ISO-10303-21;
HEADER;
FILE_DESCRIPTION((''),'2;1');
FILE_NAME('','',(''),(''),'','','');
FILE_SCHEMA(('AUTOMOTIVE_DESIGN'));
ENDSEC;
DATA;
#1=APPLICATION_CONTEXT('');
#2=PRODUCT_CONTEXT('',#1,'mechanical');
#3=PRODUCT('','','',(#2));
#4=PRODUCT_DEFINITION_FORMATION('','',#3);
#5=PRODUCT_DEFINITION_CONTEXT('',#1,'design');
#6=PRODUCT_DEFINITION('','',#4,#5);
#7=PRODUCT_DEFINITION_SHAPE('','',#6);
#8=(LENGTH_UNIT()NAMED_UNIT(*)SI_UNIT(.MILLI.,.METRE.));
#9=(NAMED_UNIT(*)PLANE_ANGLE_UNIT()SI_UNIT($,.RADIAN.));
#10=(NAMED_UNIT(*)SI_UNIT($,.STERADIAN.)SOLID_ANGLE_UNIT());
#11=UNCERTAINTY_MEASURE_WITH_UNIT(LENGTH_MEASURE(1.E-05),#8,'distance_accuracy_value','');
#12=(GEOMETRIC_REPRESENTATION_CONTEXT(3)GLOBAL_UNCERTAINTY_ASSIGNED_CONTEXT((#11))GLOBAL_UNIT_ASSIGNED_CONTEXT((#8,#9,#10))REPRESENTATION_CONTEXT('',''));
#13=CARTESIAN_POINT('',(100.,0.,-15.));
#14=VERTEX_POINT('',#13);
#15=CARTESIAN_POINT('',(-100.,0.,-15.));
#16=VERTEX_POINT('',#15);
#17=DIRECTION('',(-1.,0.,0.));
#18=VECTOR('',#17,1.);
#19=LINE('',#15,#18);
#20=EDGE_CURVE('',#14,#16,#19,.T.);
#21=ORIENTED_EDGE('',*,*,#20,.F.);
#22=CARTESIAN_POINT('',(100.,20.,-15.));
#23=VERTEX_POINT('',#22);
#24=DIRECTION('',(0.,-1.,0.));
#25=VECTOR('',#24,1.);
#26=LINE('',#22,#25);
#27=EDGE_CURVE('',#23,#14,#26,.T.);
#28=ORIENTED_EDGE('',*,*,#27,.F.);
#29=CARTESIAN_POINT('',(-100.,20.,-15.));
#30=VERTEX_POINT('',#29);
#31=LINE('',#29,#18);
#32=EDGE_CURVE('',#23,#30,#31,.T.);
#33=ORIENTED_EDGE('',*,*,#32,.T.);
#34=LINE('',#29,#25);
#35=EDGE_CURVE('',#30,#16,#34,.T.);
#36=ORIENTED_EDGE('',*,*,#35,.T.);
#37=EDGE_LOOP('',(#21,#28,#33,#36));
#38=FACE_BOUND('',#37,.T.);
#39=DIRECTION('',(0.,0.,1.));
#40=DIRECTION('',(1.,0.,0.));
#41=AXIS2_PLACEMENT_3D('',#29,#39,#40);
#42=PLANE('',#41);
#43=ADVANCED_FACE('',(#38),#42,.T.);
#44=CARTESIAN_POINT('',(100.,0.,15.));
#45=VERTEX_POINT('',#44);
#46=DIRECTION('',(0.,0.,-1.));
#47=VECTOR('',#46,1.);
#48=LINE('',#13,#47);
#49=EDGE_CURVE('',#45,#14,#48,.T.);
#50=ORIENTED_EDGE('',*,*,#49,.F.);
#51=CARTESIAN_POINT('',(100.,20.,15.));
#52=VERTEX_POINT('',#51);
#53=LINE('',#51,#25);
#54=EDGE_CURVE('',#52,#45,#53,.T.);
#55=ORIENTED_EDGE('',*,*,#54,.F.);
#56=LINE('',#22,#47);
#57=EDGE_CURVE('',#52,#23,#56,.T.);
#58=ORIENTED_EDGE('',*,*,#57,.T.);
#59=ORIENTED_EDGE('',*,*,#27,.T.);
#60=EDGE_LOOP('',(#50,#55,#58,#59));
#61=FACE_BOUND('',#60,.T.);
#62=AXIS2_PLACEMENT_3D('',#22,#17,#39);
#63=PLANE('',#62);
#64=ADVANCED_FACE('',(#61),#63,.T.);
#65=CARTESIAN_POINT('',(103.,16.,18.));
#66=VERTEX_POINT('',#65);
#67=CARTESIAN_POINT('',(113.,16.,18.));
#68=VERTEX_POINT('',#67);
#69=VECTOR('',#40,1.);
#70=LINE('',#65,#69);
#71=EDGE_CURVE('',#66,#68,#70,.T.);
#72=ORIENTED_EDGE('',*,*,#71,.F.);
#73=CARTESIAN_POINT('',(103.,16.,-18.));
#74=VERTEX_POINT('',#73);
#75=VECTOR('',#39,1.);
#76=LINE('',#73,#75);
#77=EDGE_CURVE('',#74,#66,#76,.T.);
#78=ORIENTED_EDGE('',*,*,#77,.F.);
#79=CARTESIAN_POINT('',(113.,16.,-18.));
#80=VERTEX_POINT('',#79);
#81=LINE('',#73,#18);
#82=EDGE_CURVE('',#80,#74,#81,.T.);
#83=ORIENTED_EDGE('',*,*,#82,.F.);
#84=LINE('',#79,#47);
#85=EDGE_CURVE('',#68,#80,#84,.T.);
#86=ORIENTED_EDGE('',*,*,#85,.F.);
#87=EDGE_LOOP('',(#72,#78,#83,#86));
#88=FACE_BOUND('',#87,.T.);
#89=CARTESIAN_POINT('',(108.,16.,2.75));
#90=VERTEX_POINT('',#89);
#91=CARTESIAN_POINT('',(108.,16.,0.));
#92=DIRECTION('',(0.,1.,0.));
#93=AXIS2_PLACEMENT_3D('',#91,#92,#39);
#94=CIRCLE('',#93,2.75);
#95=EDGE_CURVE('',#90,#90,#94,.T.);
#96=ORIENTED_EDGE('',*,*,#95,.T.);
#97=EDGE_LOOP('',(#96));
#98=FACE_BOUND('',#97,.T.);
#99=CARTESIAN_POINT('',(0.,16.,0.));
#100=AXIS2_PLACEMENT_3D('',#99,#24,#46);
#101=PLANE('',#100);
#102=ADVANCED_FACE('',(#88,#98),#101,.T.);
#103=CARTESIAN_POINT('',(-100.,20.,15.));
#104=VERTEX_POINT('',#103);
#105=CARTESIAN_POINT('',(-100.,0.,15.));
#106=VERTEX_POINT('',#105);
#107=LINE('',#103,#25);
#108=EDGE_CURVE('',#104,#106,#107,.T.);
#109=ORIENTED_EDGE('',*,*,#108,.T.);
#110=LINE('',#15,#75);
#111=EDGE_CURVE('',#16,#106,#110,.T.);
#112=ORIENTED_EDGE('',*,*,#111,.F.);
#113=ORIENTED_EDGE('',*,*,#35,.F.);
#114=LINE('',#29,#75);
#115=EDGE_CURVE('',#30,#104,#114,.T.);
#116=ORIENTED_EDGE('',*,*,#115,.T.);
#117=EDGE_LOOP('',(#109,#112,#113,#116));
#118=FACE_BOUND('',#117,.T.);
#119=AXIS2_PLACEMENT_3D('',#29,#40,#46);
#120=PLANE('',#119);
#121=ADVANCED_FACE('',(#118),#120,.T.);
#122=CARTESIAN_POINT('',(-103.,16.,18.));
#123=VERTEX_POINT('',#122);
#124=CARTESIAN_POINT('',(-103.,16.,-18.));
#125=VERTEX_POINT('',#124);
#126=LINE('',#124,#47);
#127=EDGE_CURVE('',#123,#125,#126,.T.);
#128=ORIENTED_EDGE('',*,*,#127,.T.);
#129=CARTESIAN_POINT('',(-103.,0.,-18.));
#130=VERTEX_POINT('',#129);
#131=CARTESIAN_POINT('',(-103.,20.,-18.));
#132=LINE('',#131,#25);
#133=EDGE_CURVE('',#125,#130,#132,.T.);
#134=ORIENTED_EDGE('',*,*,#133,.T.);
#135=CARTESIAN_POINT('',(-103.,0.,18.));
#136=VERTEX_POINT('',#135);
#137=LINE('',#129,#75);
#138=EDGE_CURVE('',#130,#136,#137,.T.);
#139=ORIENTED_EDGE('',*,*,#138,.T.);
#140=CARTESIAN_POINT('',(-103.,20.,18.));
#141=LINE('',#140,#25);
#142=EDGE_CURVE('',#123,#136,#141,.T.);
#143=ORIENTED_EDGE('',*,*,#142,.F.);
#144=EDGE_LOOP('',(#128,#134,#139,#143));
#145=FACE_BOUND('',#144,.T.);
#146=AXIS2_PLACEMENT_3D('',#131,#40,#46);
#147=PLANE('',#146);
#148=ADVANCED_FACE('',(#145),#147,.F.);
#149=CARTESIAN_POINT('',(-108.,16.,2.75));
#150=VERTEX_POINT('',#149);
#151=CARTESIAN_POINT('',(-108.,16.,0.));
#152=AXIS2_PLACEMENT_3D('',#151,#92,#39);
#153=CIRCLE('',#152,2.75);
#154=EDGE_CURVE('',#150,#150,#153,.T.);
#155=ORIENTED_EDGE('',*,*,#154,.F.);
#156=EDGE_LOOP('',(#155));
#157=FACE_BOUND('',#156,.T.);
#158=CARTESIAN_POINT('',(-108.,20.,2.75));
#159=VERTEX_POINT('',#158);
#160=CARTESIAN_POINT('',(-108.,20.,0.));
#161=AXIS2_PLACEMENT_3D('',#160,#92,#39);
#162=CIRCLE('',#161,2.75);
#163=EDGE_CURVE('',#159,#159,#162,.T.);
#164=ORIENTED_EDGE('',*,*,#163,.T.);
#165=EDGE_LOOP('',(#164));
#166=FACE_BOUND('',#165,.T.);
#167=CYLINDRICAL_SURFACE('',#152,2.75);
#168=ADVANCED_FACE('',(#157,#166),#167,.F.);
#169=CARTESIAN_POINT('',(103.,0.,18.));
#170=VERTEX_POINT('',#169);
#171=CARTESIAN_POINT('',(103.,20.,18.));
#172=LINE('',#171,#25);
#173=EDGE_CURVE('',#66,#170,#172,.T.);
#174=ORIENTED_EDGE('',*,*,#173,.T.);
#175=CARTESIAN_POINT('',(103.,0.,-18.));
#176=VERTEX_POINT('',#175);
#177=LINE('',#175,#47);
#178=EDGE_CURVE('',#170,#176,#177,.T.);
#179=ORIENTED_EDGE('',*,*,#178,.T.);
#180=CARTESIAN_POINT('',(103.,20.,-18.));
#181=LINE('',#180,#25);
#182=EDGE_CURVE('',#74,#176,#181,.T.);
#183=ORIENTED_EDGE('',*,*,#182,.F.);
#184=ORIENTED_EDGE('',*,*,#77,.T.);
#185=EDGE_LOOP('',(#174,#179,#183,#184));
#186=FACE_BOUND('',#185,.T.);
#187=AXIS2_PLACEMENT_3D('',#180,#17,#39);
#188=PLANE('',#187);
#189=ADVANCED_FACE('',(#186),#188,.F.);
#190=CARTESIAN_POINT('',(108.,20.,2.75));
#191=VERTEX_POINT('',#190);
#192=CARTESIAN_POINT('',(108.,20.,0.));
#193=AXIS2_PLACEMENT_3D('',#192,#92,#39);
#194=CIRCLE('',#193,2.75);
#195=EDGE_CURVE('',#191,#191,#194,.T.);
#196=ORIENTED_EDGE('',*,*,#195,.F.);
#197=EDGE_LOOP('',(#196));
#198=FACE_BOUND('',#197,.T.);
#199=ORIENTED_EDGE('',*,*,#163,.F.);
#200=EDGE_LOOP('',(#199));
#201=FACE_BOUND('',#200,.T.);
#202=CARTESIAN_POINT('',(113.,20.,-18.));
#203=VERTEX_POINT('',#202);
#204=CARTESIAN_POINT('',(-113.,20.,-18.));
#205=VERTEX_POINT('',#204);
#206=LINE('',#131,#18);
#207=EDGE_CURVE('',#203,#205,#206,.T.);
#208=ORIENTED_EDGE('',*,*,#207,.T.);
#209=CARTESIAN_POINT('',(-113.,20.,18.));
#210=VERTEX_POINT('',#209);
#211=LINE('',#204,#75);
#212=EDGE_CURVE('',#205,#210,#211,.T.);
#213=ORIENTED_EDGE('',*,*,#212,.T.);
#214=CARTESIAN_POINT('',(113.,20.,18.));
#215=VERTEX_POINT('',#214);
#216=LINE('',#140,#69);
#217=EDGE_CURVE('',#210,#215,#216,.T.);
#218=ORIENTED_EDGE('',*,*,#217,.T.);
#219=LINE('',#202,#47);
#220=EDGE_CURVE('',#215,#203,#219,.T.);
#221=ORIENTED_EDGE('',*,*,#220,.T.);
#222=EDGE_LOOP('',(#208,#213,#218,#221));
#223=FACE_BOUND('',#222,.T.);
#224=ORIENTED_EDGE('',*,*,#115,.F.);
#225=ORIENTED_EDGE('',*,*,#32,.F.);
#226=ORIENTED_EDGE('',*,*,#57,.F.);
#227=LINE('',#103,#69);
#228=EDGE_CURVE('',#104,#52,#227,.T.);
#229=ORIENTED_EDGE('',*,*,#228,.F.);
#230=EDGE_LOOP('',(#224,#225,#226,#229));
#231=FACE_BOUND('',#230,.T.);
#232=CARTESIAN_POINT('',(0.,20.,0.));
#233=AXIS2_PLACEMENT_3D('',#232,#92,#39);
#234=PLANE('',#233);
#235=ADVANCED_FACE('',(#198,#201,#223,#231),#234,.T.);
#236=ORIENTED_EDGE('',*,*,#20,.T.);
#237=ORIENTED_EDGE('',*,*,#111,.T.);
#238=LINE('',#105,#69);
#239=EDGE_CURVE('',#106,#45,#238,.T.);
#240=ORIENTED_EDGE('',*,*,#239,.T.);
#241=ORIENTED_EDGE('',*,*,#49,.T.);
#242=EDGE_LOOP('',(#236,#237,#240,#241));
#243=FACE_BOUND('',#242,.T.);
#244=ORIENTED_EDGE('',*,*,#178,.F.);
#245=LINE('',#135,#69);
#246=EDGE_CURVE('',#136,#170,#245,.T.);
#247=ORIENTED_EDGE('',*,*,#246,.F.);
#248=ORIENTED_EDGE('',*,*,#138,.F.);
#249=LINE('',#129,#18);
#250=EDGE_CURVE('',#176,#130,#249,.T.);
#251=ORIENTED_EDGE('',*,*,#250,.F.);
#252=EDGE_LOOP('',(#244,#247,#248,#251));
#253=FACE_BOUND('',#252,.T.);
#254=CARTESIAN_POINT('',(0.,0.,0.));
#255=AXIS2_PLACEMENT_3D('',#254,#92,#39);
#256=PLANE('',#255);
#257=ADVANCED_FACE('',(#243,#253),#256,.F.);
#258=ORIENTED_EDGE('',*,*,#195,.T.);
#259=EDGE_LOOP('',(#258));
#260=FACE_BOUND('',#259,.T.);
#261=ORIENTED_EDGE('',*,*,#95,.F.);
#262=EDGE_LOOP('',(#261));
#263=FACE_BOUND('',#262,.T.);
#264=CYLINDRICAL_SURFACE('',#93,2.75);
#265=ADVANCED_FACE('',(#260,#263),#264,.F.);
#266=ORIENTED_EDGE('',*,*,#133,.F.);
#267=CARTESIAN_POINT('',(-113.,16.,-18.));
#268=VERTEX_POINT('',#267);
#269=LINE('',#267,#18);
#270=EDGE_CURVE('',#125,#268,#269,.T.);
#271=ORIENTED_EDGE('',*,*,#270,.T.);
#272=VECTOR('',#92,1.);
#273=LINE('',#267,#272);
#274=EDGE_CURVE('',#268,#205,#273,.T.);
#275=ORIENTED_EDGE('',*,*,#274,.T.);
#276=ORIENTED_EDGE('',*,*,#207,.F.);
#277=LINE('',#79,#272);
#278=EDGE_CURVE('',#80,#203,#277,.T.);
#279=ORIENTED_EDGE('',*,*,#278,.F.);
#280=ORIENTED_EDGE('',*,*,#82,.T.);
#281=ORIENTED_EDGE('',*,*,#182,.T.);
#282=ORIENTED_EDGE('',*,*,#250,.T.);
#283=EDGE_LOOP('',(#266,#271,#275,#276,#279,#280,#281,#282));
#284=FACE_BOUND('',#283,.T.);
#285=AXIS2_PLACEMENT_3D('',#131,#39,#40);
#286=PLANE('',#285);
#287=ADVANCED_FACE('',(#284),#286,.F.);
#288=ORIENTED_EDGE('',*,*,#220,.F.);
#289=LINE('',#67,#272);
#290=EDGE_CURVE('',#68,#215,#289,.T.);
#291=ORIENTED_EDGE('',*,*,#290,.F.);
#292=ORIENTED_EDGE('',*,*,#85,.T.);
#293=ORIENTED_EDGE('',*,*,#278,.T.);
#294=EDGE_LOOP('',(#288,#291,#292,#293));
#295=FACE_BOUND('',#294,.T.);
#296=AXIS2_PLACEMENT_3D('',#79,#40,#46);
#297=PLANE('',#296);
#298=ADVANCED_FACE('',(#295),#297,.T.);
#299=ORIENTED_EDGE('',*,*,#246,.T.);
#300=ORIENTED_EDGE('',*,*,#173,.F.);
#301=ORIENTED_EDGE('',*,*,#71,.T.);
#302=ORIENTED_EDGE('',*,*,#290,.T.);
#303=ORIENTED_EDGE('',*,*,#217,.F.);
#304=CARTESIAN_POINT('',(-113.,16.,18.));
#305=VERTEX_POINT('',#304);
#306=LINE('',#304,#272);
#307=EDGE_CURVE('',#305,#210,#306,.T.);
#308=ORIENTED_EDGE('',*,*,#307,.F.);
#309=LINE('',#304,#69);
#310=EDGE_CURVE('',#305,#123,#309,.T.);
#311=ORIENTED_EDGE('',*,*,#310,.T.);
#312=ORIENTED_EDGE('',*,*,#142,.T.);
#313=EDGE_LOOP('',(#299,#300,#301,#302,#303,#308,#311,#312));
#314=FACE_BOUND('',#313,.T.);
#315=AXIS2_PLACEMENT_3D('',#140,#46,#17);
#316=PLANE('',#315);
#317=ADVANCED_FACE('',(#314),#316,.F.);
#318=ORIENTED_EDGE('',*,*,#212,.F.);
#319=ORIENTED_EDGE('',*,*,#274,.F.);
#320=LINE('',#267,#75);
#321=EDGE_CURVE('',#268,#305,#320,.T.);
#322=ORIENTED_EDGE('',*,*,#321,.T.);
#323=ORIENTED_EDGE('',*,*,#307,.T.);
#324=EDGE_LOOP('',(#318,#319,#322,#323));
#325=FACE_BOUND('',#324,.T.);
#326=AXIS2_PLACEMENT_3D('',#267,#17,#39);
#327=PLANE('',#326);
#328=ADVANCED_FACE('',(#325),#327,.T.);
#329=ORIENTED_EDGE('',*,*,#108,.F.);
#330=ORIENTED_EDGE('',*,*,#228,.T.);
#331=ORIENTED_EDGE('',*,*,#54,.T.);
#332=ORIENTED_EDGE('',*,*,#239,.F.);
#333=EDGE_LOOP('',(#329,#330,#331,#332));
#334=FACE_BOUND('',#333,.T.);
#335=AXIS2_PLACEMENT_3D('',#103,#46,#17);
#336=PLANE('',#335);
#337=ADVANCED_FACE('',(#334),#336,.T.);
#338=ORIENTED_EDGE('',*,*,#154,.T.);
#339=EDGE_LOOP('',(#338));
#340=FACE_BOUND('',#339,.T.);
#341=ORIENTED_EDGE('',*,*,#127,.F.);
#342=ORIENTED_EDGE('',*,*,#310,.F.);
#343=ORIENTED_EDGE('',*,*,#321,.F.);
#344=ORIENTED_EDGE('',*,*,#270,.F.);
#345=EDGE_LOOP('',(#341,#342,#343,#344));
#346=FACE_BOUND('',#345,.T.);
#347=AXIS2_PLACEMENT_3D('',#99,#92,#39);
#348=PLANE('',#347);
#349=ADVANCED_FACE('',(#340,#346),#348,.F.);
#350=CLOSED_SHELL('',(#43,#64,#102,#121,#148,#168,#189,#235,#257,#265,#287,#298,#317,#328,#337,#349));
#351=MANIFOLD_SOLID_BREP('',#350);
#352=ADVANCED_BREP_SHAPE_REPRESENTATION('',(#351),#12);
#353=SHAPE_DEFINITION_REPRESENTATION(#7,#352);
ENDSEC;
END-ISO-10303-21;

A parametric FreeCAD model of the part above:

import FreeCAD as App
import Part
import Sketcher
Q = App.Units.Quantity


def add_polygon(sketch, points):
    """Adds a closed chain of lines whose ends are joined by coincident constraints."""
    first, n = sketch.GeometryCount, len(points)
    for a, b in zip(points, points[1:] + points[:1]):
        sketch.addGeometry(Part.LineSegment(App.Vector(*a, 0), App.Vector(*b, 0)), False)
    for i in range(n):
        sketch.addConstraint(Sketcher.Constraint("Coincident", first + i, 2, first + (i + 1) % n, 1))

doc = App.newDocument("Part")
body = doc.addObject("PartDesign::Body", "Body")

sketch1 = body.newObject("Sketcher::SketchObject", "Sketch")
sketch1.AttachmentSupport = (doc.getObject("XZ_Plane"), [""])
sketch1.MapMode = "FlatFace"
add_polygon(sketch1, [(-103, -18), (-103, 18), (103, 18), (103, -18)])
add_polygon(sketch1, [(100, 15), (-100, 15), (-100, -15), (100, -15)])
sketch1.addConstraint(Sketcher.Constraint("Vertical", 0))
sketch1.addConstraint(Sketcher.Constraint("Horizontal", 1))
sketch1.addConstraint(Sketcher.Constraint("Vertical", 2))
sketch1.addConstraint(Sketcher.Constraint("Horizontal", 3))
sketch1.addConstraint(Sketcher.Constraint("Horizontal", 4))
sketch1.addConstraint(Sketcher.Constraint("Vertical", 5))
sketch1.addConstraint(Sketcher.Constraint("Horizontal", 6))
sketch1.addConstraint(Sketcher.Constraint("Vertical", 7))
sketch1.addConstraint(Sketcher.Constraint("Symmetric", 0, 2, 2, 2, -1, 1))
sketch1.addConstraint(Sketcher.Constraint("Symmetric", 4, 2, 6, 2, -1, 1))
sketch1.addConstraint(Sketcher.Constraint("DistanceX", 1, 1, 1, 2, Q("206 mm")))
sketch1.addConstraint(Sketcher.Constraint("DistanceX", 4, 2, 4, 1, Q("200 mm")))
sketch1.addConstraint(Sketcher.Constraint("DistanceY", 0, 1, 0, 2, Q("36 mm")))
sketch1.addConstraint(Sketcher.Constraint("DistanceY", 5, 2, 5, 1, Q("30 mm")))
pad1 = body.newObject("PartDesign::Pad", "Pad")
pad1.Profile = sketch1
pad1.Length = 20
pad1.Reversed = True

sketch2 = body.newObject("Sketcher::SketchObject", "Sketch001")
sketch2.AttachmentSupport = (doc.getObject("XZ_Plane"), [""])
sketch2.MapMode = "FlatFace"
sketch2.AttachmentOffset = App.Placement(App.Vector(0, 0, -20), App.Rotation())
add_polygon(sketch2, [(-113, -18), (-113, 18), (-103, 18), (-103, -18)])
add_polygon(sketch2, [(103, -18), (103, 18), (113, 18), (113, -18)])
sketch2.addConstraint(Sketcher.Constraint("Vertical", 0))
sketch2.addConstraint(Sketcher.Constraint("Horizontal", 1))
sketch2.addConstraint(Sketcher.Constraint("Vertical", 2))
sketch2.addConstraint(Sketcher.Constraint("Horizontal", 3))
sketch2.addConstraint(Sketcher.Constraint("Vertical", 4))
sketch2.addConstraint(Sketcher.Constraint("Horizontal", 5))
sketch2.addConstraint(Sketcher.Constraint("Vertical", 6))
sketch2.addConstraint(Sketcher.Constraint("Horizontal", 7))
sketch2.addConstraint(Sketcher.Constraint("Symmetric", 2, 2, 4, 2, -1, 1))
sketch2.addConstraint(Sketcher.Constraint("Symmetric", 0, 2, 6, 2, -1, 1))
sketch2.addConstraint(Sketcher.Constraint("Horizontal", 1, 2, 4, 2))
sketch2.addConstraint(Sketcher.Constraint("DistanceX", 1, 1, 1, 2, Q("10 mm")))
sketch2.addConstraint(Sketcher.Constraint("DistanceY", 0, 1, 0, 2, Q("36 mm")))
sketch2.addConstraint(Sketcher.Constraint("DistanceX", 0, 2, -1, 1, Q("113 mm")))
pad2 = body.newObject("PartDesign::Pad", "Pad001")
pad2.Profile = sketch2
pad2.Length = 4

sketch3 = body.newObject("Sketcher::SketchObject", "Sketch002")
sketch3.AttachmentSupport = (doc.getObject("XZ_Plane"), [""])
sketch3.MapMode = "FlatFace"
sketch3.AttachmentOffset = App.Placement(App.Vector(0, 0, -20), App.Rotation())
sketch3.addGeometry(Part.Circle(App.Vector(108, 0, 0), App.Vector(0, 0, 1), 2.8), False)
sketch3.addGeometry(Part.Circle(App.Vector(-108, 0, 0), App.Vector(0, 0, 1), 2.8), False)
sketch3.addConstraint(Sketcher.Constraint("Equal", 0, 1))
sketch3.addConstraint(Sketcher.Constraint("Symmetric", 0, 3, 1, 3, -1, 1))
sketch3.addConstraint(Sketcher.Constraint("PointOnObject", 0, 3, -1))
sketch3.addConstraint(Sketcher.Constraint("Diameter", 0, Q("5.5 mm")))
sketch3.addConstraint(Sketcher.Constraint("DistanceX", -1, 1, 0, 3, Q("108 mm")))
pocket1 = body.newObject("PartDesign::Pocket", "Pocket")
pocket1.Profile = sketch3
pocket1.Length = 4
pocket1.Reversed = True

doc.recompute()
